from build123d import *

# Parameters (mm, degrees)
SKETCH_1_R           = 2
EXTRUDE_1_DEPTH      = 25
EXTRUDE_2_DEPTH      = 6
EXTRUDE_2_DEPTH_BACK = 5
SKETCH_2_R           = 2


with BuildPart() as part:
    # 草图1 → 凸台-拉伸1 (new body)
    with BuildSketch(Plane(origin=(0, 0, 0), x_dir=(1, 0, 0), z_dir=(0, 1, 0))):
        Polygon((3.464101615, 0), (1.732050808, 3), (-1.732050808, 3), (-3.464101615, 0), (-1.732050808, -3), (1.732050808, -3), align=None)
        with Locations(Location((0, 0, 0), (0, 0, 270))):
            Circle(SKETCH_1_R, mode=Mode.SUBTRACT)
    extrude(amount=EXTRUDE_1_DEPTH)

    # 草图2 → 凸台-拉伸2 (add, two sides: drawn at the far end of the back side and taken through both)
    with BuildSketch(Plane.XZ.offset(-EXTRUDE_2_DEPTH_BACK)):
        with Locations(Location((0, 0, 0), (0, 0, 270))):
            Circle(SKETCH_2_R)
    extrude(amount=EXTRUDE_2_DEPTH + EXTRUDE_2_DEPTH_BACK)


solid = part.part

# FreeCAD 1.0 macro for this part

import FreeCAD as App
import Part
import Sketcher
Q = App.Units.Quantity

doc = App.newDocument("Part")
body = doc.addObject("PartDesign::Body", "Body")

# Sketch on XZ plane
sketch1 = doc.addObject("Sketcher::SketchObject", "Sketch")
body.addObject(sketch1)
sketch1.AttachmentSupport = (doc.XZ_Plane, [""])
sketch1.MapMode = "FlatFace"
sketch1.addGeometry([
    Part.LineSegment(App.Vector(3.464102, 0, 0), App.Vector(1.732051, -3, 0)),  # 0
    Part.LineSegment(App.Vector(1.732051, -3, 0), App.Vector(-1.732051, -3, 0)),  # 1
    Part.LineSegment(App.Vector(-1.732051, -3, 0), App.Vector(-3.464102, 0, 0)),  # 2
    Part.LineSegment(App.Vector(-3.464102, 0, 0), App.Vector(-1.732051, 3, 0)),  # 3
    Part.LineSegment(App.Vector(-1.732051, 3, 0), App.Vector(1.732051, 3, 0)),  # 4
    Part.LineSegment(App.Vector(1.732051, 3, 0), App.Vector(3.464102, 0, 0)),  # 5
    Part.Circle(App.Vector(0, 0, 0), App.Vector(0, 0, 1), 2),  # 6
], False)
sketch1.addConstraint([
    Sketcher.Constraint("Coincident", 0, 2, 1, 1),
    Sketcher.Constraint("Coincident", 1, 2, 2, 1),
    Sketcher.Constraint("Coincident", 2, 2, 3, 1),
    Sketcher.Constraint("Coincident", 3, 2, 4, 1),
    Sketcher.Constraint("Coincident", 4, 2, 5, 1),
    Sketcher.Constraint("Coincident", 5, 2, 0, 1),
    Sketcher.Constraint("Horizontal", 1),
    Sketcher.Constraint("Horizontal", 4),
    Sketcher.Constraint("Coincident", 6, 3, -1, 1),
    Sketcher.Constraint("Symmetric", 0, 2, 3, 2, -1, 1),
    Sketcher.Constraint("Symmetric", 2, 2, 5, 2, -1, 1),
    Sketcher.Constraint("PointOnObject", 2, 2, -1),
    Sketcher.Constraint("Parallel", 2, 5),
    Sketcher.Constraint("Vertical", 1, 2, 3, 2),
    Sketcher.Constraint("Diameter", 6, Q("4 mm")),
    Sketcher.Constraint("Angle", 0, Q("-120 deg")),
    Sketcher.Constraint("DistanceY", 0, 2, -1, 1, Q("3 mm")),
    Sketcher.Constraint("DistanceX", 1, 2, 1, 1, Q("3.464102 mm")),
])
pad1 = doc.addObject("PartDesign::Pad", "Pad")
body.addObject(pad1)
pad1.Profile = sketch1
pad1.Length = 25
pad1.Reversed = True

# Sketch on XZ plane
sketch2 = doc.addObject("Sketcher::SketchObject", "Sketch001")
body.addObject(sketch2)
sketch2.AttachmentSupport = (doc.XZ_Plane, [""])
sketch2.MapMode = "FlatFace"
sketch2.addGeometry(Part.Circle(App.Vector(0, 0, 0), App.Vector(0, 0, 1), 2), False)
sketch2.addConstraint([
    Sketcher.Constraint("Coincident", 0, 3, -1, 1),
    Sketcher.Constraint("Diameter", 0, Q("4 mm")),
])
pad2 = doc.addObject("PartDesign::Pad", "Pad001")
body.addObject(pad2)
pad2.Profile = sketch2
pad2.Type = "TwoLengths"
pad2.Length = 6
pad2.Length2 = 5

doc.recompute()
